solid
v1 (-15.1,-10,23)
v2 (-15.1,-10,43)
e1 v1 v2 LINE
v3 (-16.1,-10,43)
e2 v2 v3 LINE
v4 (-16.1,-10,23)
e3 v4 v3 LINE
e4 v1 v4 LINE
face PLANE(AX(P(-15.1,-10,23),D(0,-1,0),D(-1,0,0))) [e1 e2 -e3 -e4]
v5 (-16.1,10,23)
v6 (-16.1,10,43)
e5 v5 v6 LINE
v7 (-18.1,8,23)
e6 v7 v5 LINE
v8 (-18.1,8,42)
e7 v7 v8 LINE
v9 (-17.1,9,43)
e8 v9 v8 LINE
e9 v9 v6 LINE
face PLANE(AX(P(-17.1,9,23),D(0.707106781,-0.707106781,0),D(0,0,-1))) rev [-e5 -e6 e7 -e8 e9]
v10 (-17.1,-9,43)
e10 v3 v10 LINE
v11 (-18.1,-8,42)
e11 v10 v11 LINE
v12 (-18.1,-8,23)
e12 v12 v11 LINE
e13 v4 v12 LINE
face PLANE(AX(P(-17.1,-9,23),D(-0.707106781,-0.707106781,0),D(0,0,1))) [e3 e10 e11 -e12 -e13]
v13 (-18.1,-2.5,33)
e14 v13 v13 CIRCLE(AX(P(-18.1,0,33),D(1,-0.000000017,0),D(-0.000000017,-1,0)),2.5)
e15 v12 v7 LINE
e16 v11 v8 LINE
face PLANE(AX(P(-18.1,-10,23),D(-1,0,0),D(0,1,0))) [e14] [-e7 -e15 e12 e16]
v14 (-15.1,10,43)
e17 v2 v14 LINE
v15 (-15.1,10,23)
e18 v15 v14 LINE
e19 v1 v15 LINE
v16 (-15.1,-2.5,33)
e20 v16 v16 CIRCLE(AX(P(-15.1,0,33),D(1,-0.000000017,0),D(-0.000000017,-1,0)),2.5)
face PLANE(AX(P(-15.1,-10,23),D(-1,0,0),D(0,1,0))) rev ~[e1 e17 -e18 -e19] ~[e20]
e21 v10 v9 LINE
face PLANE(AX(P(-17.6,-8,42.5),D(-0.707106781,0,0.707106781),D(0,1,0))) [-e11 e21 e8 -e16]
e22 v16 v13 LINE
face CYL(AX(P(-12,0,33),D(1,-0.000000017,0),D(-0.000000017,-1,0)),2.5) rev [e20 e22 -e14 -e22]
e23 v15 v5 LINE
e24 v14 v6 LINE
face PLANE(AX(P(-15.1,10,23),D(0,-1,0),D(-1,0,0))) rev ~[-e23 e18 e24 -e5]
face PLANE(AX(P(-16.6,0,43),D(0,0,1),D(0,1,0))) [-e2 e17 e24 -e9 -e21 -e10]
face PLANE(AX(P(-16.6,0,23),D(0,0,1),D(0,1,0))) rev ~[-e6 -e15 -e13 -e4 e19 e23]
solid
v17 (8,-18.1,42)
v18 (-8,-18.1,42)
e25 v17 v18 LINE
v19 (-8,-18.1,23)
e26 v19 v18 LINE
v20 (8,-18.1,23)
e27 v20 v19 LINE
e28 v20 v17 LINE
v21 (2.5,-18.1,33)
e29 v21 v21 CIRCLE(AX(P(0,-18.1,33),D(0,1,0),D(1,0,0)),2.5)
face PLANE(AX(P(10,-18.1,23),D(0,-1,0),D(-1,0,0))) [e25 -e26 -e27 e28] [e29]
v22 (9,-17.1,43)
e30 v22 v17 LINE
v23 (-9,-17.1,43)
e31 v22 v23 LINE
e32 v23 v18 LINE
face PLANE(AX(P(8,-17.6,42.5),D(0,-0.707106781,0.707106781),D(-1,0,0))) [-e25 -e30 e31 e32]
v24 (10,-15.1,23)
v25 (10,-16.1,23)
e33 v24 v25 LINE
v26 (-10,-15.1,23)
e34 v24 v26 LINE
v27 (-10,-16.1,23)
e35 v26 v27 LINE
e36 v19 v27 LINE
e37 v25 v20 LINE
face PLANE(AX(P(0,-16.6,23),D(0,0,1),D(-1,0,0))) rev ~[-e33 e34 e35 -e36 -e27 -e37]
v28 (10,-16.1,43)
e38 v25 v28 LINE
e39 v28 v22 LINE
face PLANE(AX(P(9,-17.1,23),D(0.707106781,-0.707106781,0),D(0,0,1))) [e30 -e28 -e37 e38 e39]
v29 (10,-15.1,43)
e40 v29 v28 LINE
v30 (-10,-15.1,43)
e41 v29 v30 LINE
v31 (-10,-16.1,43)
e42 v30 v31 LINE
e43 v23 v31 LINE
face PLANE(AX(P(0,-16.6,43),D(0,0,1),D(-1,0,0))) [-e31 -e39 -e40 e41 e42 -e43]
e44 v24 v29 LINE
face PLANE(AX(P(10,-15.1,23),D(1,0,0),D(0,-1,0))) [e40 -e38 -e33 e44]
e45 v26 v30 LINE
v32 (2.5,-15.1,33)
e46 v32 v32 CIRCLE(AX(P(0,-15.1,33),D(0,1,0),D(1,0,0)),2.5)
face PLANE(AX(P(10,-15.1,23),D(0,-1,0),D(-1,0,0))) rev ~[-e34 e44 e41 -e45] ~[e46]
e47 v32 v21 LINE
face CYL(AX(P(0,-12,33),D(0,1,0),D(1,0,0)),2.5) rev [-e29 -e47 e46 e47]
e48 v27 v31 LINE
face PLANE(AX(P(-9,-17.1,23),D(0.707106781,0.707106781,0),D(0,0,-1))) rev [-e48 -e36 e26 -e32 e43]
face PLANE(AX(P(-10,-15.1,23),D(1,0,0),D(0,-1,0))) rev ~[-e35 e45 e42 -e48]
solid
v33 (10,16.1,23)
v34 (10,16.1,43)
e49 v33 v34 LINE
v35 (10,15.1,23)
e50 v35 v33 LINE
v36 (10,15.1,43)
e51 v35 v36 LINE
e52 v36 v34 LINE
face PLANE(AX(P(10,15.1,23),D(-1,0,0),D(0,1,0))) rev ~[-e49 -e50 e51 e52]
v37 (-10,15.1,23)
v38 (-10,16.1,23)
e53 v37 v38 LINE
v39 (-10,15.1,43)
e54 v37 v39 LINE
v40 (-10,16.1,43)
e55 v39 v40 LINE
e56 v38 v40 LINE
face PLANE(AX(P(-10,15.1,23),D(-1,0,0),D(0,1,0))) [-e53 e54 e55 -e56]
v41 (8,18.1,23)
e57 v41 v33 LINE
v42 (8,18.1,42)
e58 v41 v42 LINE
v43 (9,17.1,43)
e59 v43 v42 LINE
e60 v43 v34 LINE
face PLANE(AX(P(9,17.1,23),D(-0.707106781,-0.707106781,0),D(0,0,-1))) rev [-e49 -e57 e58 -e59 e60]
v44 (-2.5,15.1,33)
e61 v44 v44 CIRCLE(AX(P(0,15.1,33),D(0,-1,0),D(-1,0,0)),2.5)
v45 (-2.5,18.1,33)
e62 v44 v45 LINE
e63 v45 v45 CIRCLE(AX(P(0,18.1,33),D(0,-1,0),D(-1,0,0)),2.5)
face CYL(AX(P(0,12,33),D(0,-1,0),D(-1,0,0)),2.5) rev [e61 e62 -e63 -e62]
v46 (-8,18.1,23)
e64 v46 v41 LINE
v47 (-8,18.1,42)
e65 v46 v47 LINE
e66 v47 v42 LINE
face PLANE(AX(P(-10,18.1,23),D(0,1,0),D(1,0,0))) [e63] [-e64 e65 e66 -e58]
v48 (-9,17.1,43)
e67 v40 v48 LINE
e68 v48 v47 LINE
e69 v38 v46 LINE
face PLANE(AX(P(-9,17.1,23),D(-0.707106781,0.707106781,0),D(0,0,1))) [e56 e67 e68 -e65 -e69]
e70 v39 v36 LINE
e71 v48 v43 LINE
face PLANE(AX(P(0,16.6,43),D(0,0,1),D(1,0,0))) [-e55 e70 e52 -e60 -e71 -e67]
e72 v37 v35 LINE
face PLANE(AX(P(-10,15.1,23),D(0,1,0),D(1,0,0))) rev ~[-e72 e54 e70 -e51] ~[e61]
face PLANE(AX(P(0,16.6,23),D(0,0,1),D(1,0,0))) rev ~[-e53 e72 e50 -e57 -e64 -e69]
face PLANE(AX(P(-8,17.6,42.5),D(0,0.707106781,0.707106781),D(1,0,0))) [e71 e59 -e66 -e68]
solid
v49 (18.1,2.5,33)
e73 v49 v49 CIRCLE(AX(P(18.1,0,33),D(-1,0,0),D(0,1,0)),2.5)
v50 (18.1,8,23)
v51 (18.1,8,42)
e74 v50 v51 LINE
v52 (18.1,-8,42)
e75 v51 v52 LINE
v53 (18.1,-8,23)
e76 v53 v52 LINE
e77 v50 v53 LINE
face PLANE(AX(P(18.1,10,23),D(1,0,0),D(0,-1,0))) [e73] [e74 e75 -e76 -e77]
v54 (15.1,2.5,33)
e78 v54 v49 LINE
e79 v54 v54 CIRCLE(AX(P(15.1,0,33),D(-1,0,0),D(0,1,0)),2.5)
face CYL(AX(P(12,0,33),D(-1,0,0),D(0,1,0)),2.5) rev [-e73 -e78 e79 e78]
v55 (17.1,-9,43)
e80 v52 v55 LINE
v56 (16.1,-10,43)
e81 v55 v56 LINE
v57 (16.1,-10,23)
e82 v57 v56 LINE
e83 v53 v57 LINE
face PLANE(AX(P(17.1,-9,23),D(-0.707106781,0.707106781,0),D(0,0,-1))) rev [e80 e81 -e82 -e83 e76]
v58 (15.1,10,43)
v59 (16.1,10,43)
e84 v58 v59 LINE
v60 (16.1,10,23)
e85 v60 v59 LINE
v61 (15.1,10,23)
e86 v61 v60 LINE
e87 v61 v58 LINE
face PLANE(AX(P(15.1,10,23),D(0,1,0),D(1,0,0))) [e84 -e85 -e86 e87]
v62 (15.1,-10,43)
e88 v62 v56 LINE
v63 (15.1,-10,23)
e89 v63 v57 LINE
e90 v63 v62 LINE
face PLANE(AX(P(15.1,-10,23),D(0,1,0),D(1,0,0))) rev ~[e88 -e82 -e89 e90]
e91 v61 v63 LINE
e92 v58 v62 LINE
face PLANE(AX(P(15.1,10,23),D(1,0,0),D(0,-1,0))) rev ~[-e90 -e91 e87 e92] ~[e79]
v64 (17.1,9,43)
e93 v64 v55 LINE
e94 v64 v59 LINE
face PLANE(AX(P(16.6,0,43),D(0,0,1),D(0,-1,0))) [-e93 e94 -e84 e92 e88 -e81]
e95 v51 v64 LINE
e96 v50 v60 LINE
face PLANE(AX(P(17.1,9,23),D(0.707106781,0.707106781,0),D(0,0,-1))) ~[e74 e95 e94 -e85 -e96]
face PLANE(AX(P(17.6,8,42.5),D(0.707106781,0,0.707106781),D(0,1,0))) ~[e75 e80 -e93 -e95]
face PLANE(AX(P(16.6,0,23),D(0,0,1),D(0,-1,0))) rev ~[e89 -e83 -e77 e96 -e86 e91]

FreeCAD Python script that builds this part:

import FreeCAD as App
import Part
import Sketcher

V = App.Vector
Q = App.Units.Quantity


def edges_at(feature, points):
    """Names of the edges that pass closest to the given points."""
    edges = feature.Shape.Edges
    near = lambda p: min(range(len(edges)), key=lambda i: edges[i].distToShape(Part.Vertex(*p))[0])
    return sorted({f"Edge{near(p) + 1}" for p in points})


def add_polygon(sketch, points):
    """Adds a closed chain of lines whose ends are joined by coincident constraints."""
    first, n = sketch.GeometryCount, len(points)
    for a, b in zip(points, points[1:] + points[:1]):
        sketch.addGeometry(Part.LineSegment(App.Vector(*a, 0), App.Vector(*b, 0)), False)
    for i in range(n):
        sketch.addConstraint(Sketcher.Constraint("Coincident", first + i, 2, first + (i + 1) % n, 1))

doc = App.newDocument("Part")
body = doc.addObject("PartDesign::Body", "Body")

# Sketch on YZ plane
sketch1 = body.newObject("Sketcher::SketchObject", "Sketch")
sketch1.AttachmentSupport = (doc.getObject("YZ_Plane"), [""])
sketch1.MapMode = "FlatFace"
sketch1.AttachmentOffset = App.Placement(V(0, 0, 12), App.Rotation())
sketch1.addGeometry(Part.Circle(V(0, 30, 0), V(0, 0, 1), 2.5), False)
sketch1.addConstraint([
    Sketcher.Constraint("PointOnObject", 0, 3, -2),
    Sketcher.Constraint("Diameter", 0, Q("5 mm")),
    Sketcher.Constraint("DistanceY", -1, 1, 0, 3, Q("30 mm")),
])
pad1 = body.newObject("PartDesign::Pad", "Pad")
pad1.Profile = sketch1
pad1.Length = 10
body2 = doc.addObject("PartDesign::Body", "Body001")

# Sketch on XY plane
sketch2 = body2.newObject("Sketcher::SketchObject", "Sketch001")
sketch2.AttachmentSupport = (doc.getObject("XY_Plane001"), [""])
sketch2.MapMode = "FlatFace"
sketch2.addGeometry(Part.Circle(V(0, 0, 0), V(0, 0, 1), 2.5), False)
sketch2.addConstraint([
    Sketcher.Constraint("Coincident", 0, 3, -1, 1),
    Sketcher.Constraint("Diameter", 0, Q("5 mm")),
])
pad2 = body2.newObject("PartDesign::Pad", "Pad001")
pad2.Profile = sketch2
pad2.Length = 10
body3 = doc.addObject("PartDesign::Body", "Body002")
doc.recompute()

body2.Placement = App.Placement(V(0, 0, 0), App.Rotation(V(1, 0, 0), 90))
boolean = body3.newObject("PartDesign::Boolean", "Boolean")
boolean.Type = "Fuse"
boolean.addObjects([body2])
body4 = doc.addObject("PartDesign::Body", "Body003")
doc.recompute()

body3.Placement = App.Placement(V(0, 12, 30), App.Rotation(V(0, 0, 1), 180))
boolean2 = body4.newObject("PartDesign::Boolean", "Boolean001")
boolean2.Type = "Fuse"
boolean2.addObjects([body3])
body5 = doc.addObject("PartDesign::Body", "Body004")

# Sketch on XY plane
sketch3 = body5.newObject("Sketcher::SketchObject", "Sketch002")
sketch3.AttachmentSupport = (doc.getObject("XY_Plane004"), [""])
sketch3.MapMode = "FlatFace"
sketch3.addGeometry(Part.Circle(V(0, 0, 0), V(0, 0, 1), 2.5), False)
sketch3.addConstraint([
    Sketcher.Constraint("Coincident", 0, 3, -1, 1),
    Sketcher.Constraint("Diameter", 0, Q("5 mm")),
])
pad3 = body5.newObject("PartDesign::Pad", "Pad002")
pad3.Profile = sketch3
pad3.Length = 10
body6 = doc.addObject("PartDesign::Body", "Body005")
doc.recompute()

body5.Placement = App.Placement(V(0, 0, 0), App.Rotation(V(1, 0, 0), 90))
boolean3 = body6.newObject("PartDesign::Boolean", "Boolean002")
boolean3.Type = "Fuse"
boolean3.addObjects([body5])
body7 = doc.addObject("PartDesign::Body", "Body006")
doc.recompute()

body6.Placement = App.Placement(V(0, 0, 0), App.Rotation(V(0, 0, 1), 0))
boolean4 = body7.newObject("PartDesign::Boolean", "Boolean003")
boolean4.Type = "Fuse"
boolean4.addObjects([body6])
body8 = doc.addObject("PartDesign::Body", "Body007")
doc.recompute()

body7.Placement = App.Placement(V(-12, 0, 30), App.Rotation(V(0, 0, 1), 269.999999))
boolean5 = body8.newObject("PartDesign::Boolean", "Boolean004")
boolean5.Type = "Fuse"
boolean5.addObjects([body7])
body9 = doc.addObject("PartDesign::Body", "Body008")
body9.AllowCompound = True

# Sketch on XZ plane
sketch4 = body9.newObject("Sketcher::SketchObject", "Sketch003")
sketch4.AttachmentSupport = (doc.getObject("XZ_Plane008"), [""])
sketch4.MapMode = "FlatFace"
sketch4.AttachmentOffset = App.Placement(V(0, 0, 12), App.Rotation())
sketch4.addGeometry(Part.Circle(V(0, 30, 0), V(0, 0, 1), 2.5), False)
sketch4.addConstraint([
    Sketcher.Constraint("PointOnObject", 0, 3, -2),
    Sketcher.Constraint("Diameter", 0, Q("5 mm")),
    Sketcher.Constraint("DistanceY", -1, 1, 0, 3, Q("30 mm")),
])
pad4 = body9.newObject("PartDesign::Pad", "Pad003")
pad4.Profile = sketch4
pad4.Length = 10
doc.recompute()

boolean6 = body9.newObject("PartDesign::Boolean", "Boolean005")
boolean6.Type = "Fuse"
boolean6.addObjects([body])
doc.recompute()

boolean7 = body9.newObject("PartDesign::Boolean", "Boolean006")
boolean7.Type = "Fuse"
boolean7.addObjects([body4])
doc.recompute()

boolean8 = body9.newObject("PartDesign::Boolean", "Boolean007")
boolean8.Type = "Fuse"
boolean8.addObjects([body8])
body10 = doc.addObject("PartDesign::Body", "Body009")
body10.AllowCompound = True
doc.recompute()

body9.Placement = App.Placement(V(0, 0, -2), App.Rotation(V(0, 0, 1), 0))
boolean9 = body10.newObject("PartDesign::Boolean", "Boolean008")
boolean9.Type = "Fuse"
boolean9.addObjects([body9])
body11 = doc.addObject("PartDesign::Body", "Body010")

# Sketch on XY plane
sketch5 = body11.newObject("Sketcher::SketchObject", "Sketch004")
sketch5.AttachmentSupport = (doc.getObject("XY_Plane010"), [""])
sketch5.MapMode = "FlatFace"
sketch5.AttachmentOffset = App.Placement(V(0, 0, 20), App.Rotation())
add_polygon(sketch5, [(-18.1, -10), (-15.1, -10), (-15.1, 10), (-18.1, 10)])  # lines 0-3
sketch5.addConstraint([
    Sketcher.Constraint("Horizontal", 0),
    Sketcher.Constraint("Vertical", 1),
    Sketcher.Constraint("Horizontal", 2),
    Sketcher.Constraint("Vertical", 3),
    Sketcher.Constraint("DistanceX", 0, 1, 0, 2, Q("3 mm")),
    Sketcher.Constraint("DistanceY", 1, 1, 1, 2, Q("20 mm")),
    Sketcher.Constraint("DistanceY", 0, 2, -1, 1, Q("10 mm")),
    Sketcher.Constraint("DistanceX", 0, 2, -1, 1, Q("15.1 mm")),
])
pad5 = body11.newObject("PartDesign::Pad", "Pad004")
pad5.Profile = sketch5
pad5.Length = 20
body12 = doc.addObject("PartDesign::Body", "Body011")

# Sketch on XY plane
sketch6 = body12.newObject("Sketcher::SketchObject", "Sketch005")
sketch6.AttachmentSupport = (doc.getObject("XY_Plane011"), [""])
sketch6.MapMode = "FlatFace"
sketch6.AttachmentOffset = App.Placement(V(0, 0, 20), App.Rotation())
add_polygon(sketch6, [(10, -18.1), (10, -15.1), (-10, -15.1), (-10, -18.1)])  # lines 0-3
sketch6.addConstraint([
    Sketcher.Constraint("Vertical", 0),
    Sketcher.Constraint("Horizontal", 1),
    Sketcher.Constraint("Vertical", 2),
    Sketcher.Constraint("Horizontal", 3),
    Sketcher.Constraint("DistanceX", 1, 2, 1, 1, Q("20 mm")),
    Sketcher.Constraint("DistanceY", 0, 1, 0, 2, Q("3 mm")),
    Sketcher.Constraint("DistanceX", -1, 1, 0, 2, Q("10 mm")),
    Sketcher.Constraint("DistanceY", 0, 2, -1, 1, Q("15.1 mm")),
])
pad6 = body12.newObject("PartDesign::Pad", "Pad005")
pad6.Profile = sketch6
pad6.Length = 20
body13 = doc.addObject("PartDesign::Body", "Body012")

# Sketch on XY plane
sketch7 = body13.newObject("Sketcher::SketchObject", "Sketch006")
sketch7.AttachmentSupport = (doc.getObject("XY_Plane012"), [""])
sketch7.MapMode = "FlatFace"
sketch7.AttachmentOffset = App.Placement(V(0, 0, 20), App.Rotation())
add_polygon(sketch7, [(18.1, 10), (15.1, 10), (15.1, -10), (18.1, -10)])  # lines 0-3
sketch7.addConstraint([
    Sketcher.Constraint("Horizontal", 0),
    Sketcher.Constraint("Vertical", 1),
    Sketcher.Constraint("Horizontal", 2),
    Sketcher.Constraint("Vertical", 3),
    Sketcher.Constraint("DistanceX", 0, 2, 0, 1, Q("3 mm")),
    Sketcher.Constraint("DistanceY", 1, 2, 1, 1, Q("20 mm")),
    Sketcher.Constraint("DistanceY", -1, 1, 0, 2, Q("10 mm")),
    Sketcher.Constraint("DistanceX", -1, 1, 0, 2, Q("15.1 mm")),
])
pad7 = body13.newObject("PartDesign::Pad", "Pad006")
pad7.Profile = sketch7
pad7.Length = 20
body14 = doc.addObject("PartDesign::Body", "Body013")
body14.AllowCompound = True

# Sketch on XY plane
sketch8 = body14.newObject("Sketcher::SketchObject", "Sketch007")
sketch8.AttachmentSupport = (doc.getObject("XY_Plane013"), [""])
sketch8.MapMode = "FlatFace"
sketch8.AttachmentOffset = App.Placement(V(0, 0, 20), App.Rotation())
add_polygon(sketch8, [(-10, 18.1), (-10, 15.1), (10, 15.1), (10, 18.1)])  # lines 0-3
sketch8.addConstraint([
    Sketcher.Constraint("Vertical", 0),
    Sketcher.Constraint("Horizontal", 1),
    Sketcher.Constraint("Vertical", 2),
    Sketcher.Constraint("Horizontal", 3),
    Sketcher.Constraint("DistanceX", 1, 1, 1, 2, Q("20 mm")),
    Sketcher.Constraint("DistanceY", 0, 2, 0, 1, Q("3 mm")),
    Sketcher.Constraint("DistanceX", 0, 2, -1, 1, Q("10 mm")),
    Sketcher.Constraint("DistanceY", -1, 1, 0, 2, Q("15.1 mm")),
])
pad8 = body14.newObject("PartDesign::Pad", "Pad007")
pad8.Profile = sketch8
pad8.Length = 20
doc.recompute()

boolean10 = body14.newObject("PartDesign::Boolean", "Boolean009")
boolean10.Type = "Fuse"
boolean10.addObjects([body11])
doc.recompute()

boolean11 = body14.newObject("PartDesign::Boolean", "Boolean010")
boolean11.Type = "Fuse"
boolean11.addObjects([body12])
doc.recompute()

boolean12 = body14.newObject("PartDesign::Boolean", "Boolean011")
boolean12.Type = "Fuse"
boolean12.addObjects([body13])
body15 = doc.addObject("PartDesign::Body", "Body014")
body15.AllowCompound = True
doc.recompute()

body14.Placement = App.Placement(V(0, 0, -2), App.Rotation(V(0, 0, 1), 0))
boolean13 = body15.newObject("PartDesign::Boolean", "Boolean012")
boolean13.Type = "Fuse"
boolean13.addObjects([body14])
doc.recompute()

boolean14 = body15.newObject("PartDesign::Boolean", "Boolean013")
boolean14.Type = "Cut"
boolean14.addObjects([body10])
body16 = doc.addObject("PartDesign::Body", "Body015")
body16.AllowCompound = True
doc.recompute()

body15.Placement = App.Placement(V(0, 0, 5), App.Rotation(V(0, 0, 1), 0))
boolean15 = body16.newObject("PartDesign::Boolean", "Boolean014")
boolean15.Type = "Fuse"
boolean15.addObjects([body15])
doc.recompute()

chamfer = body16.newObject("PartDesign::Chamfer", "Chamfer")
chamfer.Base = (boolean15, edges_at(boolean15, [
    (-18.1, -10, 33),
    (-18.1, 10, 33),
    (10, -18.1, 33),
    (-10, -18.1, 33),
    (18.1, -10, 33),
]))
chamfer.Size = 2
doc.recompute()

chamfer2 = body16.newObject("PartDesign::Chamfer", "Chamfer001")
chamfer2.Base = (chamfer, edges_at(chamfer, [(18.1, 10, 33), (-10, 18.1, 33), (10, 18.1, 33)]))
chamfer2.Size = 2
doc.recompute()

chamfer3 = body16.newObject("PartDesign::Chamfer", "Chamfer002")
chamfer3.Base = (chamfer2, edges_at(chamfer2, [
    (18.1, 0, 43),
    (0, 18.1, 43),
    (-18.1, 0, 43),
    (0, -18.1, 43),
]))
chamfer3.Size = 1

doc.recompute()
